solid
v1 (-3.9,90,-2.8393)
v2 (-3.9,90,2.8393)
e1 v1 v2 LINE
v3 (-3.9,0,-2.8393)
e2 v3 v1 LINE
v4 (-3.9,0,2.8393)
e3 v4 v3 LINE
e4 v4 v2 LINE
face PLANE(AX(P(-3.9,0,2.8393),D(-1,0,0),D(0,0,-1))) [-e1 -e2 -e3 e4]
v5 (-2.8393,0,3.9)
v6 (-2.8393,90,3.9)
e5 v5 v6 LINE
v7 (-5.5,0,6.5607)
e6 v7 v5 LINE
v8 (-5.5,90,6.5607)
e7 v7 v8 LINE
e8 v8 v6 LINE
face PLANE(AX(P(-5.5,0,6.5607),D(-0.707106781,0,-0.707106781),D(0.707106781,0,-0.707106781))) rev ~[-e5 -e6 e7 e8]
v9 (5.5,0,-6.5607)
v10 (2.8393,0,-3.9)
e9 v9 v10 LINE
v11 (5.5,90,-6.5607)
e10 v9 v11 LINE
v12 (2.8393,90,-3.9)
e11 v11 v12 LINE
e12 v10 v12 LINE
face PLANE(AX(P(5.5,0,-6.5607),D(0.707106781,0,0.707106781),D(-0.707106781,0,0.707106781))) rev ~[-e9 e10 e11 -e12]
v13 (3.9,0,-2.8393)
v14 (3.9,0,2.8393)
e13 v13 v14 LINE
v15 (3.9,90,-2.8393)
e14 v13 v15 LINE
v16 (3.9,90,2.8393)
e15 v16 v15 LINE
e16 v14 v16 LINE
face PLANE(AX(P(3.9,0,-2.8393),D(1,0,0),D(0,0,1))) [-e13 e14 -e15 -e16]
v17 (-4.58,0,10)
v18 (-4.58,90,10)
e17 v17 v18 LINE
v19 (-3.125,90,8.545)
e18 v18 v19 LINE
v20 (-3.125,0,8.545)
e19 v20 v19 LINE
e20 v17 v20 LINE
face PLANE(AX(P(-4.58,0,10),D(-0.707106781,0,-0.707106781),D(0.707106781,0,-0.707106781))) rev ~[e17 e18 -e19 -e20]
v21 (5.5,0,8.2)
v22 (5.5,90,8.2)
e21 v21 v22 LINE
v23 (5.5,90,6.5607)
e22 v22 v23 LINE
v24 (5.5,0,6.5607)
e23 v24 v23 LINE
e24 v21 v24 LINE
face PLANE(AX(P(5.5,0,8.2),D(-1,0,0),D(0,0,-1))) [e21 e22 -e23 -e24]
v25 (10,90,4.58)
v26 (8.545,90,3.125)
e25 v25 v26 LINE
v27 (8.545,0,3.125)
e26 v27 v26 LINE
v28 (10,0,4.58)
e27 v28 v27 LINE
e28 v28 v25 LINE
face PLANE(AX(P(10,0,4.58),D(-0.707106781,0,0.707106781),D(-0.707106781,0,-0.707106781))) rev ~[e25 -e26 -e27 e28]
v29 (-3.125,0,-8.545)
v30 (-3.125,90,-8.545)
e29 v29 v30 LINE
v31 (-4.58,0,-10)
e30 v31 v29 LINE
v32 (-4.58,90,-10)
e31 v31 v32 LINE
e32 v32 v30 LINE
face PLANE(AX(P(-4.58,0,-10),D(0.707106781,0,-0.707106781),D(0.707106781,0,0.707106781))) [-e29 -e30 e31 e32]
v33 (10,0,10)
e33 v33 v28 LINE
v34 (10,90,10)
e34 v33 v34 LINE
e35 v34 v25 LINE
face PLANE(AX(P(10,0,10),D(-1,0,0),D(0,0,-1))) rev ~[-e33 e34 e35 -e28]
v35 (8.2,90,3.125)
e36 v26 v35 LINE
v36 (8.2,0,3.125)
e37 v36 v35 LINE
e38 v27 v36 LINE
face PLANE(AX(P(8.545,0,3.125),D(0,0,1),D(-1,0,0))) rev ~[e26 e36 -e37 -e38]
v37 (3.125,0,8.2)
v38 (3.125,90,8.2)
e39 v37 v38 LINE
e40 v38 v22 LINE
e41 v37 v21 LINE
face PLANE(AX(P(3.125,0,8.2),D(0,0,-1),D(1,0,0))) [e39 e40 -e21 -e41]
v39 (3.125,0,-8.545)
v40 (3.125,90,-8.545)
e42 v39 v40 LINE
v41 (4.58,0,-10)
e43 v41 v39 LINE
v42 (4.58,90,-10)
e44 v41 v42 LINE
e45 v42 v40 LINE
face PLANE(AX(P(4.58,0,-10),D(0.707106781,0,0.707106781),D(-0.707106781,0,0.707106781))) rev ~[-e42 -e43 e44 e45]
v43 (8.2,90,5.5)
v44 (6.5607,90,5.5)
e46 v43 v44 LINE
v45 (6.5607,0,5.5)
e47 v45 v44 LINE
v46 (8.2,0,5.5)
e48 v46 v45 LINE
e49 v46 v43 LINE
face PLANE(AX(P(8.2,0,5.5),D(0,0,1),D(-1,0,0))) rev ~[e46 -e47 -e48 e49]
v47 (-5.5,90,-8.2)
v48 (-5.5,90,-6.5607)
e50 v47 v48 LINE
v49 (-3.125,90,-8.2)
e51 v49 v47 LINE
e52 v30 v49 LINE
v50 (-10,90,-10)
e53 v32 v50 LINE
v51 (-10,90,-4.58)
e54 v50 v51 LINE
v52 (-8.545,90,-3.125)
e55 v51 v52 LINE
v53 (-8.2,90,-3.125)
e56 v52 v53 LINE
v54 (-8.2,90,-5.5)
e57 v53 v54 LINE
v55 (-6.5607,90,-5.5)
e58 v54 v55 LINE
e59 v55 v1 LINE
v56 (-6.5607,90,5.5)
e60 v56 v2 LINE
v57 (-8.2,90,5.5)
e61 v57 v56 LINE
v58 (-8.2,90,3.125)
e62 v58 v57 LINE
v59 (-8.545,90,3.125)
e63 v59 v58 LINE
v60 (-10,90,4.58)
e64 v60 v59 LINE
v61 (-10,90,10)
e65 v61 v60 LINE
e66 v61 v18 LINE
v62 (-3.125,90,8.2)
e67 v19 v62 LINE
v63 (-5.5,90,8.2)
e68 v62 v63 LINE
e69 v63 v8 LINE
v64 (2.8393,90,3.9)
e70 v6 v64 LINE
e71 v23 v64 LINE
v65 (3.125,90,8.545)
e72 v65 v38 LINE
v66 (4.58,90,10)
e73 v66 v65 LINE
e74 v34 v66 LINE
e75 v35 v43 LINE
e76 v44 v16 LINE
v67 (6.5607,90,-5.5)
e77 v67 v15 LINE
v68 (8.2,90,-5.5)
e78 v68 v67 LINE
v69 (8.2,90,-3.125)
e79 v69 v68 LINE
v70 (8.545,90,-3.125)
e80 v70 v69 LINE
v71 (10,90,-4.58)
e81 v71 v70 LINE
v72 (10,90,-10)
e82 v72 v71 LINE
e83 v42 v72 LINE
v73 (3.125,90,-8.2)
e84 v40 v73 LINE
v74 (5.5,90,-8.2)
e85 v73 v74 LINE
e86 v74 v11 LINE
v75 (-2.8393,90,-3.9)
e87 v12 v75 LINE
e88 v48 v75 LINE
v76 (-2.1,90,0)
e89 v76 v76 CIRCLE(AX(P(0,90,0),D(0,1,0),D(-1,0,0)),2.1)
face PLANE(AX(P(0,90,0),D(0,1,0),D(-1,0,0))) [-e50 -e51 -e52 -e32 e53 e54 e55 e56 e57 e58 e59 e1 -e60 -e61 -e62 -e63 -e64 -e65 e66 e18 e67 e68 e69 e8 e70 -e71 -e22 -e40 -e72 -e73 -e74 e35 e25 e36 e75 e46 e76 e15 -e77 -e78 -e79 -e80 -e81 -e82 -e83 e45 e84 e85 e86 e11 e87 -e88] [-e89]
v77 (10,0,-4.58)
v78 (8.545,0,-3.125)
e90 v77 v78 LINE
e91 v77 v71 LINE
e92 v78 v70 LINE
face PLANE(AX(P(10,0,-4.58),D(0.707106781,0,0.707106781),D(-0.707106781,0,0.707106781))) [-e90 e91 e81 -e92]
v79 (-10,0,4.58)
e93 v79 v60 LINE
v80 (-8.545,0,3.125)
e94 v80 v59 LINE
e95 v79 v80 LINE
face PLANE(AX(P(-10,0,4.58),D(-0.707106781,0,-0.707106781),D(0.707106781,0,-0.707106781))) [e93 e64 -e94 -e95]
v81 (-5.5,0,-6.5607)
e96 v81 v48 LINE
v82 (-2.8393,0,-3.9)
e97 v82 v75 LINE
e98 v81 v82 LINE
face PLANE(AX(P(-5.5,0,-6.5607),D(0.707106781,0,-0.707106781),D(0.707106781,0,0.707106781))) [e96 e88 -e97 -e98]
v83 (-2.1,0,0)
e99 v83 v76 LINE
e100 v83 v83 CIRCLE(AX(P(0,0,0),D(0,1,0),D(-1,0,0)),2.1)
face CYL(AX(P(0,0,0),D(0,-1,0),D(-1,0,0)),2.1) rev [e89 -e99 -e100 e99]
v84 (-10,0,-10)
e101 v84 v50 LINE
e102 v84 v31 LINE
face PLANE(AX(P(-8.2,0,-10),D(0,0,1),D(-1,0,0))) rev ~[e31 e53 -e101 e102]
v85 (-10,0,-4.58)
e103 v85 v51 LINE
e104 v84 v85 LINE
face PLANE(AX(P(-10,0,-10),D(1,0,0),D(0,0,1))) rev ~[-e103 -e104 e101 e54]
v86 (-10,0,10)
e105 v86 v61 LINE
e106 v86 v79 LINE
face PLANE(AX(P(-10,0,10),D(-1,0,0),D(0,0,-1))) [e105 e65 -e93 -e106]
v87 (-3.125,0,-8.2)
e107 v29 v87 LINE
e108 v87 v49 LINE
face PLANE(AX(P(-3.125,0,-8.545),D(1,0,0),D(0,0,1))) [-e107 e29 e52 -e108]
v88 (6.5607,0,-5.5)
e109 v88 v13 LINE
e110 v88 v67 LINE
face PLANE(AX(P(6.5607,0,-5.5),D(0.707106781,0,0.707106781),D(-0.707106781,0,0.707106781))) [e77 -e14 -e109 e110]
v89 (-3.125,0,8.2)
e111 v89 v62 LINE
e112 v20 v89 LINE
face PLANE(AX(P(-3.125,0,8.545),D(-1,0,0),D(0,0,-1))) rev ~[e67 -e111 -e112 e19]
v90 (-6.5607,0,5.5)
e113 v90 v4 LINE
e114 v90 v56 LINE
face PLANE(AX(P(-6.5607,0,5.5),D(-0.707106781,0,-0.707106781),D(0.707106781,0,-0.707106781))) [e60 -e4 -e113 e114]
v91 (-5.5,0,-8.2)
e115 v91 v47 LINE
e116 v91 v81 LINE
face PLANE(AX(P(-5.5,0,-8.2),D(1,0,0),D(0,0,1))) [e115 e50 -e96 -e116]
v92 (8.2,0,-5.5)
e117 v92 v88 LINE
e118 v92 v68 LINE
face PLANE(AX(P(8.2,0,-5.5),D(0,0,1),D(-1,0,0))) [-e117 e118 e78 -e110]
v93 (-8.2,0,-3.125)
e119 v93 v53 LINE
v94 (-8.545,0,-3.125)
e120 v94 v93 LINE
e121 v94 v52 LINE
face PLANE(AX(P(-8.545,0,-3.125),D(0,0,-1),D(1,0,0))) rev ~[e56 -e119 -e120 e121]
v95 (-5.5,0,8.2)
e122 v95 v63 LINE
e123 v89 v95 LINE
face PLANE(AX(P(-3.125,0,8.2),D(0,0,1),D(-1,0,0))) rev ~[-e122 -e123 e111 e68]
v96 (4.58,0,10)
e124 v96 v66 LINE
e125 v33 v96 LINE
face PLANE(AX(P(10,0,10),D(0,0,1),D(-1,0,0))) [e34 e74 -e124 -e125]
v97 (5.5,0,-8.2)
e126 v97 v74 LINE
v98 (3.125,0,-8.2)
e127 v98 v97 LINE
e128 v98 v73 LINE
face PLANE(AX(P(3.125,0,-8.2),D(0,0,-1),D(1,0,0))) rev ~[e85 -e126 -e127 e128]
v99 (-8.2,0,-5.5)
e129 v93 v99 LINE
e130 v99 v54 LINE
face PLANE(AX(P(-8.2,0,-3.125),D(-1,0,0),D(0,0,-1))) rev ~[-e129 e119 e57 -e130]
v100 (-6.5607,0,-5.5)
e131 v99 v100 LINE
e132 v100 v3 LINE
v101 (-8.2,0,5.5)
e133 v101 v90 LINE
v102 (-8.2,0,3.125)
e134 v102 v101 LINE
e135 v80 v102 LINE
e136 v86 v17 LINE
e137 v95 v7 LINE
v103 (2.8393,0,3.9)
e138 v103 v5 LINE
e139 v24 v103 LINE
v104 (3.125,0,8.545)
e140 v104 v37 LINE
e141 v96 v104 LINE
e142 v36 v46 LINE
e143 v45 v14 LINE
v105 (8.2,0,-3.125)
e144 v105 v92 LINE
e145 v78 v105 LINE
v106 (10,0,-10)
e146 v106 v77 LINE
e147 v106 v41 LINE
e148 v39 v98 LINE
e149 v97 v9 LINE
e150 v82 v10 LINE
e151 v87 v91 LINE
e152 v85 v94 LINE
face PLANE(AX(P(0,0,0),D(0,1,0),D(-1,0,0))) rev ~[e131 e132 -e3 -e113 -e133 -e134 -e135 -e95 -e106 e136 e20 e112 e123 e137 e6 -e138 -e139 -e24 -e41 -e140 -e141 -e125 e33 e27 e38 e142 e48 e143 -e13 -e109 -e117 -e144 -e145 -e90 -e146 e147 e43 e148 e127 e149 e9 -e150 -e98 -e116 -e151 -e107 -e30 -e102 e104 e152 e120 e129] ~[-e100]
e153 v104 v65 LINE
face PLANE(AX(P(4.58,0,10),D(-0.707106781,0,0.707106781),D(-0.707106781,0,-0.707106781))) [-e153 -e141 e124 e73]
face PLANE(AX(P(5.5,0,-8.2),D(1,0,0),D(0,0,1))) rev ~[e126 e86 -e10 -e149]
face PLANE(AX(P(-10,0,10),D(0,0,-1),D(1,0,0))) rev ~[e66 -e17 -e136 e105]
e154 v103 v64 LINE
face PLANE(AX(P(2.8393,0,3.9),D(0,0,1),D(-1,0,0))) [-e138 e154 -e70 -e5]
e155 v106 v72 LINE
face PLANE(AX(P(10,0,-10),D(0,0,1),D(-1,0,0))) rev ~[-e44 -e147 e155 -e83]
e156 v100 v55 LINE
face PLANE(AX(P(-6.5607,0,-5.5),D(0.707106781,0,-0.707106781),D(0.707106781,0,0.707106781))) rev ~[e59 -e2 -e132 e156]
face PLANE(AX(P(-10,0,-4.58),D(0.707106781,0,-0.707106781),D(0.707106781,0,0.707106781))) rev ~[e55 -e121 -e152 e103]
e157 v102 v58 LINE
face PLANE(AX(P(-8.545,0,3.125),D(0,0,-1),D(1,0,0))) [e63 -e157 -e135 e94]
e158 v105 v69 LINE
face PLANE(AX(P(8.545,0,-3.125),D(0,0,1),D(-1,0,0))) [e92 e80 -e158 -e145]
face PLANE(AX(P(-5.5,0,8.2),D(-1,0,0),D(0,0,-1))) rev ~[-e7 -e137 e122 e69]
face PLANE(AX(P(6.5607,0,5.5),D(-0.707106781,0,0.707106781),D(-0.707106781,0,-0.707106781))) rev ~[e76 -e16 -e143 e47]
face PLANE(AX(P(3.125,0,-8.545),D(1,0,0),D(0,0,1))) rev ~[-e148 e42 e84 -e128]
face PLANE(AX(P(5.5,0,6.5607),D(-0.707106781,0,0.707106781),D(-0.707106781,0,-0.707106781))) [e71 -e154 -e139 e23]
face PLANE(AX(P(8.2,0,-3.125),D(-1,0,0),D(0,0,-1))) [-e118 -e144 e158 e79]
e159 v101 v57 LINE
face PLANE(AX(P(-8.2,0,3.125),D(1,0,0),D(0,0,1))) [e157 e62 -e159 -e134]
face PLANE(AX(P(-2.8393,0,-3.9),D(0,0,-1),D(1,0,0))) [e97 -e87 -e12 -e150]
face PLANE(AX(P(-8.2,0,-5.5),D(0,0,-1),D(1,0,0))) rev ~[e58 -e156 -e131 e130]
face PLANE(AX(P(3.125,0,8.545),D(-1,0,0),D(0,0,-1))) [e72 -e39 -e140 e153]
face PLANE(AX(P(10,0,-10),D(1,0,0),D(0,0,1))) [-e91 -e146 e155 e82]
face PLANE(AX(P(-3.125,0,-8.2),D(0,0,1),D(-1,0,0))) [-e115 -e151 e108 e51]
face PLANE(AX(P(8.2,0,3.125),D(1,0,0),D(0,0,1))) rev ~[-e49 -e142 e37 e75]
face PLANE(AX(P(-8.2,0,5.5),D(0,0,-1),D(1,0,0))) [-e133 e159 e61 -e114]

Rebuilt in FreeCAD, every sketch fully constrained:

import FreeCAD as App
import Part
import Sketcher

V = App.Vector

doc = App.newDocument("Part")
body = doc.addObject("PartDesign::Body", "Body")

# Sketch on XZ plane
sketch1 = doc.addObject("Sketcher::SketchObject", "Sketch")
body.addObject(sketch1)
sketch1.AttachmentSupport = (doc.XZ_Plane, [""])
sketch1.MapMode = "FlatFace"
sketch1.addGeometry([
    Part.LineSegment(V(10, -4.58, 0), V(10, -10, 0)),  # 0
    Part.LineSegment(V(10, -10, 0), V(4.58, -10, 0)),  # 1
    Part.LineSegment(V(4.58, -10, 0), V(3.125, -8.545, 0)),  # 2
    Part.LineSegment(V(3.125, -8.545, 0), V(3.125, -8.2, 0)),  # 3
    Part.LineSegment(V(3.125, -8.2, 0), V(5.5, -8.2, 0)),  # 4
    Part.LineSegment(V(5.5, -8.2, 0), V(5.5, -6.5607, 0)),  # 5
    Part.LineSegment(V(5.5, -6.5607, 0), V(2.8393, -3.9, 0)),  # 6
    Part.LineSegment(V(2.8393, -3.9, 0), V(-2.8393, -3.9, 0)),  # 7
    Part.LineSegment(V(-2.8393, -3.9, 0), V(-5.5, -6.5607, 0)),  # 8
    Part.LineSegment(V(-5.5, -6.5607, 0), V(-5.5, -8.2, 0)),  # 9
    Part.LineSegment(V(-5.5, -8.2, 0), V(-3.125, -8.2, 0)),  # 10
    Part.LineSegment(V(-3.125, -8.2, 0), V(-3.125, -8.545, 0)),  # 11
    Part.LineSegment(V(-3.125, -8.545, 0), V(-4.58, -10, 0)),  # 12
    Part.LineSegment(V(-4.58, -10, 0), V(-10, -10, 0)),  # 13
    Part.LineSegment(V(-10, -10, 0), V(-10, -4.58, 0)),  # 14
    Part.LineSegment(V(-10, -4.58, 0), V(-8.545, -3.125, 0)),  # 15
    Part.LineSegment(V(-8.545, -3.125, 0), V(-8.2, -3.125, 0)),  # 16
    Part.LineSegment(V(-8.2, -3.125, 0), V(-8.2, -5.5, 0)),  # 17
    Part.LineSegment(V(-8.2, -5.5, 0), V(-6.5607, -5.5, 0)),  # 18
    Part.LineSegment(V(-6.5607, -5.5, 0), V(-3.9, -2.8393, 0)),  # 19
    Part.LineSegment(V(-3.9, -2.8393, 0), V(-3.9, 2.8393, 0)),  # 20
    Part.LineSegment(V(-3.9, 2.8393, 0), V(-6.5607, 5.5, 0)),  # 21
    Part.LineSegment(V(-6.5607, 5.5, 0), V(-8.2, 5.5, 0)),  # 22
    Part.LineSegment(V(-8.2, 5.5, 0), V(-8.2, 3.125, 0)),  # 23
    Part.LineSegment(V(-8.2, 3.125, 0), V(-8.545, 3.125, 0)),  # 24
    Part.LineSegment(V(-8.545, 3.125, 0), V(-10, 4.58, 0)),  # 25
    Part.LineSegment(V(-10, 4.58, 0), V(-10, 10, 0)),  # 26
    Part.LineSegment(V(-10, 10, 0), V(-4.58, 10, 0)),  # 27
    Part.LineSegment(V(-4.58, 10, 0), V(-3.125, 8.545, 0)),  # 28
    Part.LineSegment(V(-3.125, 8.545, 0), V(-3.125, 8.2, 0)),  # 29
    Part.LineSegment(V(-3.125, 8.2, 0), V(-5.5, 8.2, 0)),  # 30
    Part.LineSegment(V(-5.5, 8.2, 0), V(-5.5, 6.5607, 0)),  # 31
    Part.LineSegment(V(-5.5, 6.5607, 0), V(-2.8393, 3.9, 0)),  # 32
    Part.LineSegment(V(-2.8393, 3.9, 0), V(2.8393, 3.9, 0)),  # 33
    Part.LineSegment(V(2.8393, 3.9, 0), V(5.5, 6.5607, 0)),  # 34
    Part.LineSegment(V(5.5, 6.5607, 0), V(5.5, 8.2, 0)),  # 35
    Part.LineSegment(V(5.5, 8.2, 0), V(3.125, 8.2, 0)),  # 36
    Part.LineSegment(V(3.125, 8.2, 0), V(3.125, 8.545, 0)),  # 37
    Part.LineSegment(V(3.125, 8.545, 0), V(4.58, 10, 0)),  # 38
    Part.LineSegment(V(4.58, 10, 0), V(10, 10, 0)),  # 39
    Part.LineSegment(V(10, 10, 0), V(10, 4.58, 0)),  # 40
    Part.LineSegment(V(10, 4.58, 0), V(8.545, 3.125, 0)),  # 41
    Part.LineSegment(V(8.545, 3.125, 0), V(8.2, 3.125, 0)),  # 42
    Part.LineSegment(V(8.2, 3.125, 0), V(8.2, 5.5, 0)),  # 43
    Part.LineSegment(V(8.2, 5.5, 0), V(6.5607, 5.5, 0)),  # 44
    Part.LineSegment(V(6.5607, 5.5, 0), V(3.9, 2.8393, 0)),  # 45
    Part.LineSegment(V(3.9, 2.8393, 0), V(3.9, -2.8393, 0)),  # 46
    Part.LineSegment(V(3.9, -2.8393, 0), V(6.5607, -5.5, 0)),  # 47
    Part.LineSegment(V(6.5607, -5.5, 0), V(8.2, -5.5, 0)),  # 48
    Part.LineSegment(V(8.2, -5.5, 0), V(8.2, -3.125, 0)),  # 49
    Part.LineSegment(V(8.2, -3.125, 0), V(8.545, -3.125, 0)),  # 50
    Part.LineSegment(V(8.545, -3.125, 0), V(10, -4.58, 0)),  # 51
    Part.Circle(V(0, 0, 0), V(0, 0, 1), 2.1),  # 52
], False)
sketch1.addConstraint([
    Sketcher.Constraint("Coincident", 0, 2, 1, 1),
    Sketcher.Constraint("Coincident", 1, 2, 2, 1),
    Sketcher.Constraint("Coincident", 2, 2, 3, 1),
    Sketcher.Constraint("Coincident", 3, 2, 4, 1),
    Sketcher.Constraint("Coincident", 4, 2, 5, 1),
    Sketcher.Constraint("Coincident", 5, 2, 6, 1),
    Sketcher.Constraint("Coincident", 6, 2, 7, 1),
    Sketcher.Constraint("Coincident", 7, 2, 8, 1),
    Sketcher.Constraint("Coincident", 8, 2, 9, 1),
    Sketcher.Constraint("Coincident", 9, 2, 10, 1),
    Sketcher.Constraint("Coincident", 10, 2, 11, 1),
    Sketcher.Constraint("Coincident", 11, 2, 12, 1),
    Sketcher.Constraint("Coincident", 12, 2, 13, 1),
    Sketcher.Constraint("Coincident", 13, 2, 14, 1),
    Sketcher.Constraint("Coincident", 14, 2, 15, 1),
    Sketcher.Constraint("Coincident", 15, 2, 16, 1),
    Sketcher.Constraint("Coincident", 16, 2, 17, 1),
    Sketcher.Constraint("Coincident", 17, 2, 18, 1),
    Sketcher.Constraint("Coincident", 18, 2, 19, 1),
    Sketcher.Constraint("Coincident", 19, 2, 20, 1),
    Sketcher.Constraint("Coincident", 20, 2, 21, 1),
    Sketcher.Constraint("Coincident", 21, 2, 22, 1),
    Sketcher.Constraint("Coincident", 22, 2, 23, 1),
    Sketcher.Constraint("Coincident", 23, 2, 24, 1),
    Sketcher.Constraint("Coincident", 24, 2, 25, 1),
    Sketcher.Constraint("Coincident", 25, 2, 26, 1),
    Sketcher.Constraint("Coincident", 26, 2, 27, 1),
    Sketcher.Constraint("Coincident", 27, 2, 28, 1),
    Sketcher.Constraint("Coincident", 28, 2, 29, 1),
    Sketcher.Constraint("Coincident", 29, 2, 30, 1),
    Sketcher.Constraint("Coincident", 30, 2, 31, 1),
    Sketcher.Constraint("Coincident", 31, 2, 32, 1),
    Sketcher.Constraint("Coincident", 32, 2, 33, 1),
    Sketcher.Constraint("Coincident", 33, 2, 34, 1),
    Sketcher.Constraint("Coincident", 34, 2, 35, 1),
    Sketcher.Constraint("Coincident", 35, 2, 36, 1),
    Sketcher.Constraint("Coincident", 36, 2, 37, 1),
    Sketcher.Constraint("Coincident", 37, 2, 38, 1),
    Sketcher.Constraint("Coincident", 38, 2, 39, 1),
    Sketcher.Constraint("Coincident", 39, 2, 40, 1),
    Sketcher.Constraint("Coincident", 40, 2, 41, 1),
    Sketcher.Constraint("Coincident", 41, 2, 42, 1),
    Sketcher.Constraint("Coincident", 42, 2, 43, 1),
    Sketcher.Constraint("Coincident", 43, 2, 44, 1),
    Sketcher.Constraint("Coincident", 44, 2, 45, 1),
    Sketcher.Constraint("Coincident", 45, 2, 46, 1),
    Sketcher.Constraint("Coincident", 46, 2, 47, 1),
    Sketcher.Constraint("Coincident", 47, 2, 48, 1),
    Sketcher.Constraint("Coincident", 48, 2, 49, 1),
    Sketcher.Constraint("Coincident", 49, 2, 50, 1),
    Sketcher.Constraint("Coincident", 50, 2, 51, 1),
    Sketcher.Constraint("Coincident", 51, 2, 0, 1),
    Sketcher.Constraint("Vertical", 0),
    Sketcher.Constraint("Horizontal", 1),
    Sketcher.Constraint("Vertical", 3),
    Sketcher.Constraint("Horizontal", 4),
    Sketcher.Constraint("Vertical", 5),
    Sketcher.Constraint("Horizontal", 7),
    Sketcher.Constraint("Vertical", 9),
    Sketcher.Constraint("Horizontal", 10),
    Sketcher.Constraint("Vertical", 11),
    Sketcher.Constraint("Horizontal", 13),
    Sketcher.Constraint("Vertical", 14),
    Sketcher.Constraint("Horizontal", 16),
    Sketcher.Constraint("Vertical", 17),
    Sketcher.Constraint("Horizontal", 18),
    Sketcher.Constraint("Vertical", 20),
    Sketcher.Constraint("Horizontal", 22),
    Sketcher.Constraint("Vertical", 23),
    Sketcher.Constraint("Horizontal", 24),
    Sketcher.Constraint("Vertical", 26),
    Sketcher.Constraint("Horizontal", 27),
    Sketcher.Constraint("Vertical", 29),
    Sketcher.Constraint("Horizontal", 30),
    Sketcher.Constraint("Vertical", 31),
    Sketcher.Constraint("Horizontal", 33),
    Sketcher.Constraint("Vertical", 35),
    Sketcher.Constraint("Horizontal", 36),
    Sketcher.Constraint("Vertical", 37),
    Sketcher.Constraint("Horizontal", 39),
    Sketcher.Constraint("Vertical", 40),
    Sketcher.Constraint("Horizontal", 42),
    Sketcher.Constraint("Vertical", 43),
    Sketcher.Constraint("Horizontal", 44),
    Sketcher.Constraint("Vertical", 46),
    Sketcher.Constraint("Horizontal", 48),
    Sketcher.Constraint("Vertical", 49),
    Sketcher.Constraint("Horizontal", 50),
    Sketcher.Constraint("Coincident", 52, 3, -1, 1),
    Sketcher.Constraint("Symmetric", 0, 2, 26, 2, -1, 1),
    Sketcher.Constraint("Symmetric", 2, 2, 28, 2, -1, 1),
    Sketcher.Constraint("Symmetric", 4, 2, 30, 2, -1, 1),
    Sketcher.Constraint("Symmetric", 6, 2, 32, 2, -1, 1),
    Sketcher.Constraint("Symmetric", 8, 2, 34, 2, -1, 1),
    Sketcher.Constraint("Symmetric", 10, 2, 36, 2, -1, 1),
    Sketcher.Constraint("Symmetric", 12, 2, 38, 2, -1, 1),
    Sketcher.Constraint("Symmetric", 14, 2, 40, 2, -1, 1),
    Sketcher.Constraint("Symmetric", 15, 2, 41, 2, -1, 1),
    Sketcher.Constraint("Symmetric", 17, 2, 43, 2, -1, 1),
    Sketcher.Constraint("Symmetric", 19, 2, 45, 2, -1, 1),
    Sketcher.Constraint("Symmetric", 21, 2, 47, 2, -1, 1),
    Sketcher.Constraint("Symmetric", 23, 2, 49, 2, -1, 1),
    Sketcher.Constraint("Symmetric", 5, 2, 8, 2, -2),
    Sketcher.Constraint("Symmetric", 3, 2, 10, 2, -2),
    Sketcher.Constraint("Symmetric", 1, 2, 12, 2, -2),
    Sketcher.Constraint("Symmetric", 25, 2, 40, 2, -2),
    Sketcher.Constraint("Symmetric", 24, 2, 41, 2, -2),
    Sketcher.Constraint("Symmetric", 22, 2, 43, 2, -2),
    Sketcher.Constraint("Parallel", 2, 6),
    Sketcher.Constraint("Perpendicular", 6, 8),
    Sketcher.Constraint("Parallel", 8, 12),
    Sketcher.Constraint("Parallel", 12, 15),
    Sketcher.Constraint("Parallel", 15, 19),
    Sketcher.Constraint("Perpendicular", 19, 21),
    Sketcher.Constraint("Parallel", 21, 25),
    Sketcher.Constraint("Parallel", 25, 28),
    Sketcher.Constraint("Parallel", 28, 32),
    Sketcher.Constraint("Perpendicular", 32, 34),
    Sketcher.Constraint("Parallel", 34, 38),
    Sketcher.Constraint("Parallel", 41, 45),
    Sketcher.Constraint("Perpendicular", 45, 47),
    Sketcher.Constraint("Parallel", 47, 51),
    Sketcher.Constraint("Horizontal", 20, 2, 45, 2),
    Sketcher.Constraint("Horizontal", 14, 2, 51, 2),
    Sketcher.Constraint("Equal", 39, 0),
    Sketcher.Constraint("Equal", 50, 3),
    Sketcher.Constraint("Equal", 48, 5),
    Sketcher.Constraint("Equal", 36, 17),
    Sketcher.Constraint("Equal", 33, 20),
    Sketcher.Constraint("Equal", 12, 15),
    Sketcher.Constraint("Equal", 8, 19),
    Sketcher.Constraint("Diameter", 52, 4.2),
    Sketcher.Constraint("DistanceY", 1, 2, 3, 2, 1.8),
    Sketcher.Constraint("DistanceY", 3, 2, 6, 2, 4.3),
    Sketcher.Constraint("DistanceX", 10, 2, 3, 2, 6.25),
    Sketcher.Constraint("DistanceX", -1, 1, 0, 2, 10.0),
    Sketcher.Constraint("DistanceX", 1, 2, 1, 1, 5.42),
    Sketcher.Constraint("DistanceX", -1, 1, 4, 2, 5.5),
    Sketcher.Constraint("DistanceX", 7, 2, 7, 1, 5.6786),
])
pad1 = doc.addObject("PartDesign::Pad", "Pad")
body.addObject(pad1)
pad1.Profile = sketch1
pad1.Length = 90
pad1.Reversed = True

doc.recompute()
